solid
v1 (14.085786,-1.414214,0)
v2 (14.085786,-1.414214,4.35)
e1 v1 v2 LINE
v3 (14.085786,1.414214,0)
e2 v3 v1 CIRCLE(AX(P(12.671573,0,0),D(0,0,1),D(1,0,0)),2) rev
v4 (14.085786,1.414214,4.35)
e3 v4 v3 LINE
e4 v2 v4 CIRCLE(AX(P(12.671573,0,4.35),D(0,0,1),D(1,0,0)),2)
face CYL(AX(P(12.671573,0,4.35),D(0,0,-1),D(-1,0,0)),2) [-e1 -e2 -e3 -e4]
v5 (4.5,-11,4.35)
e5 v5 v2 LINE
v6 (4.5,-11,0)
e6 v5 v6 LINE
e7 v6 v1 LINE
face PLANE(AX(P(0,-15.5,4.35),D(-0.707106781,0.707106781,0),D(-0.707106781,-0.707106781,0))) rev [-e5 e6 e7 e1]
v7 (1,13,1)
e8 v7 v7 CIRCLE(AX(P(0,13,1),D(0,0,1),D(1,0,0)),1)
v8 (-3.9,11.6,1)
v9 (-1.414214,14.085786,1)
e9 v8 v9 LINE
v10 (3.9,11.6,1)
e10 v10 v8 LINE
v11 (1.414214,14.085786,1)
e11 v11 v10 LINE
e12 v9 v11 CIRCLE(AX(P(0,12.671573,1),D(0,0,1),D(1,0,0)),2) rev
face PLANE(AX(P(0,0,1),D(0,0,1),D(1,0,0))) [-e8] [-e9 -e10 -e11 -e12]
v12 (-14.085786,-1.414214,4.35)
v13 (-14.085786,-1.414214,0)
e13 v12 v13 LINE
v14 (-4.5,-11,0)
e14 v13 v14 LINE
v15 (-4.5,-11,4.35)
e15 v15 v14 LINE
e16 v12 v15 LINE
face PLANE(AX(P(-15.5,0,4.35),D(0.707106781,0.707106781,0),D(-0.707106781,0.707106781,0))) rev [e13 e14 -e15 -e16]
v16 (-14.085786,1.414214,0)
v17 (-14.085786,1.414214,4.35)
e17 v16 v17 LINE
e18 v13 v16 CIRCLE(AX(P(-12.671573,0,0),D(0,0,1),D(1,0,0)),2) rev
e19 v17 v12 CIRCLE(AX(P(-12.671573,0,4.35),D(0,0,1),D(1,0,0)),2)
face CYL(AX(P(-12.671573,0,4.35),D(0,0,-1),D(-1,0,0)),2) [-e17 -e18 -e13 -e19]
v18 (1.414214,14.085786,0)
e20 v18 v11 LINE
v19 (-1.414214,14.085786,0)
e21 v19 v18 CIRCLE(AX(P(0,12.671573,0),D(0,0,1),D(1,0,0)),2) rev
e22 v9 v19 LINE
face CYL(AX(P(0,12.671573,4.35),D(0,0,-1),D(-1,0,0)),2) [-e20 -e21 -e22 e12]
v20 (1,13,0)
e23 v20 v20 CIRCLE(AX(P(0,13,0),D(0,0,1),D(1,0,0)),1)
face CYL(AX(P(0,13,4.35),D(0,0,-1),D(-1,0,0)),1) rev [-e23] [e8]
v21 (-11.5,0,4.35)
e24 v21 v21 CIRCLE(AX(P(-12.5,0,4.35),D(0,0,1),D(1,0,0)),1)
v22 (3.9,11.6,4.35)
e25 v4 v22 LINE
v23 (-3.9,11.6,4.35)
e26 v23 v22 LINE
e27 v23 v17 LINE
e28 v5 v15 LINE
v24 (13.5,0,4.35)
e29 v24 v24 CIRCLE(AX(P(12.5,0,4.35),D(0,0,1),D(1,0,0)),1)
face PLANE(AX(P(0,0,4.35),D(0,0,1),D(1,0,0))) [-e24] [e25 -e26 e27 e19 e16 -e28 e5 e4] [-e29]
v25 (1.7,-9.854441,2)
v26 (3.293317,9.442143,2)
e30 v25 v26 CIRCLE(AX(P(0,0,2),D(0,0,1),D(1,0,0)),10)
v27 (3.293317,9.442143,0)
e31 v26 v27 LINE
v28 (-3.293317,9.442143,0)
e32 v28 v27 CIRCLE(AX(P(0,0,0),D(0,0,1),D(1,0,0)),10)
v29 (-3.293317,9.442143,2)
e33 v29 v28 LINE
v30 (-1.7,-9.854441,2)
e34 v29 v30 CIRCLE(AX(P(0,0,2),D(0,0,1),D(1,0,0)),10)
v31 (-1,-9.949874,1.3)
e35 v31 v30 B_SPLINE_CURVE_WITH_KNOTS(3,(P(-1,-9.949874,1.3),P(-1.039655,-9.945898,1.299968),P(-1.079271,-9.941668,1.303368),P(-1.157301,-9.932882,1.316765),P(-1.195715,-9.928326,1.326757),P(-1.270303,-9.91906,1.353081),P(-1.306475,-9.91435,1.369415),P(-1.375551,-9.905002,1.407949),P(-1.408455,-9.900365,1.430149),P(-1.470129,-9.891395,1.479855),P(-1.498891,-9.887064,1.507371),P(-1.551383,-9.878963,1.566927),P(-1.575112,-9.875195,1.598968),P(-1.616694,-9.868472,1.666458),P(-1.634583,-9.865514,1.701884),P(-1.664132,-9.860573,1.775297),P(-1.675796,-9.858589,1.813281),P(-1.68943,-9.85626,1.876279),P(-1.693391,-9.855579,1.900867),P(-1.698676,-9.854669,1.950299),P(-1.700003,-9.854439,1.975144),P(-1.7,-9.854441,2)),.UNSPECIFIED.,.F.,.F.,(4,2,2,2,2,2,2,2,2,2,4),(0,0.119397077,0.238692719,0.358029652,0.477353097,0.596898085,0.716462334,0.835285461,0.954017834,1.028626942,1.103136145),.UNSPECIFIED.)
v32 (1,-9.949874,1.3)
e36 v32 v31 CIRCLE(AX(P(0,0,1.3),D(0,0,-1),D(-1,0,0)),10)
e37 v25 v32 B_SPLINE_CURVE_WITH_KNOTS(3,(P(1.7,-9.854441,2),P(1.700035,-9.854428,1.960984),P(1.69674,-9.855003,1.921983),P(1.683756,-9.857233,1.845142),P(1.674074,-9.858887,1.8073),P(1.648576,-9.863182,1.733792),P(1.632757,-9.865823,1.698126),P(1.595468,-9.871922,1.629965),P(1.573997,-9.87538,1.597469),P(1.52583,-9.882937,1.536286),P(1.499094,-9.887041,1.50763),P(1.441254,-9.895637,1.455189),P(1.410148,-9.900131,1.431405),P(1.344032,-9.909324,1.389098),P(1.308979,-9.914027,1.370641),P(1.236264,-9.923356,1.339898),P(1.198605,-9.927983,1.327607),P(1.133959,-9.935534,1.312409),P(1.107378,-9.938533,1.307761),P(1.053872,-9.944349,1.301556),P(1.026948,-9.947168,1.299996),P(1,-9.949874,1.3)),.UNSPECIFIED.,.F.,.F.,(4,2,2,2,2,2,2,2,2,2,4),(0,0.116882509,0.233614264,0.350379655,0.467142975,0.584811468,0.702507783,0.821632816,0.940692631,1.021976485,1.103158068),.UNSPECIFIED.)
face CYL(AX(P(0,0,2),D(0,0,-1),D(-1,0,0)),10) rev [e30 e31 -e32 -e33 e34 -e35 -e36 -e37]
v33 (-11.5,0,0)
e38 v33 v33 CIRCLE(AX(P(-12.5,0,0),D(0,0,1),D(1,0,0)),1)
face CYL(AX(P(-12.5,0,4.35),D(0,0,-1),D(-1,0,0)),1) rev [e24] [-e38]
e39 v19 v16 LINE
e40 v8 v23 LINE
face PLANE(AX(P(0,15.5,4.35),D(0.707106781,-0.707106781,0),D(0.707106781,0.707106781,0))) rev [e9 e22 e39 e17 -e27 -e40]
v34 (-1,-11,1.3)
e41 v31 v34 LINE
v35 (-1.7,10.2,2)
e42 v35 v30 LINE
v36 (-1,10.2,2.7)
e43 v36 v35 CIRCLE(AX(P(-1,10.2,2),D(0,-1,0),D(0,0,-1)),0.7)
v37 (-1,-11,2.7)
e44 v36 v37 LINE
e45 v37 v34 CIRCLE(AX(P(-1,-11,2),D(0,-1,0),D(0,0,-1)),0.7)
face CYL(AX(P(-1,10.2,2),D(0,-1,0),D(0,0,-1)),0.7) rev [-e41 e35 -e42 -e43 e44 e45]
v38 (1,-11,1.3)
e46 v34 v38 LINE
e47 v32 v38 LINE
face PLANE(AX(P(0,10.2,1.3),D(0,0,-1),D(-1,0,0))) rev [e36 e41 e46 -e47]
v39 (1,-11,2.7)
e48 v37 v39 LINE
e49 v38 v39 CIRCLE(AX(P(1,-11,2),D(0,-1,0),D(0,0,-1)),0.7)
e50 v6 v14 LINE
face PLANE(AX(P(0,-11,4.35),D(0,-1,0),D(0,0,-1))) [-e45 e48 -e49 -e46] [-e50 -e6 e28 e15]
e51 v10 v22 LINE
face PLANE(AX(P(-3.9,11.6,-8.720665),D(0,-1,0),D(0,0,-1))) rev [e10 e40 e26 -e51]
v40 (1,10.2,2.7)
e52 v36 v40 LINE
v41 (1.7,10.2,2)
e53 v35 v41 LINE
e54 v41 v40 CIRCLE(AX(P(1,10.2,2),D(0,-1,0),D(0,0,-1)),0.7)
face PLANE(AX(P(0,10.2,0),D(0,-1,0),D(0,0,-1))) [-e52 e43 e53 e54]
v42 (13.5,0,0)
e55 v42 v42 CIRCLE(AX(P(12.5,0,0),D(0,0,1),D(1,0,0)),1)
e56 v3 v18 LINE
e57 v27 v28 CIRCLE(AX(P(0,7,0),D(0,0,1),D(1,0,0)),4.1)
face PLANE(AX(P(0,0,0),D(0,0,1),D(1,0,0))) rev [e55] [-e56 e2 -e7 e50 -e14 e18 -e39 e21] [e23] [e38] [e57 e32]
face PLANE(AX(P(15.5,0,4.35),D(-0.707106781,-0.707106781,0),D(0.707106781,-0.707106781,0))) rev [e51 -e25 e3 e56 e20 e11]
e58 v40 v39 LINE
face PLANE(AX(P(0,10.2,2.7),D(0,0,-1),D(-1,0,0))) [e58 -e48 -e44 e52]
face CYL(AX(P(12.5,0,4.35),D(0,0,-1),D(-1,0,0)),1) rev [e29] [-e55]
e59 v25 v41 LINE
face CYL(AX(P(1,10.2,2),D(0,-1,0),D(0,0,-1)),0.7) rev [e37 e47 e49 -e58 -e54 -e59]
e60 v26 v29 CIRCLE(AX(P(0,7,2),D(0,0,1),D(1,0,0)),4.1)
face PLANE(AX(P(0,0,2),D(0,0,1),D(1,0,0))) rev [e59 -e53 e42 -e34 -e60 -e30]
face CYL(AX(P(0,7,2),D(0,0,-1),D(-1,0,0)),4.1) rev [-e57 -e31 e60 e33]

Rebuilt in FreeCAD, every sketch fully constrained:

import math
import FreeCAD as App
import Part
import Sketcher


def edges_at(feature, points):
    """Names of the edges that pass closest to the given points."""
    edges = feature.Shape.Edges
    near = lambda p: min(range(len(edges)), key=lambda i: edges[i].distToShape(Part.Vertex(*p))[0])
    return sorted({f"Edge{near(p) + 1}" for p in points})

doc = App.newDocument("Part")
body = doc.addObject("PartDesign::Body", "Body")

sketch1 = body.newObject("Sketcher::SketchObject", "Sketch")
sketch1.AttachmentSupport = (doc.getObject("XY_Plane"), [""])
sketch1.MapMode = "FlatFace"
sketch1.addGeometry([
    Part.LineSegment(App.Vector(0, 15.5, 0), App.Vector(-15.5, 0, 0)),
    Part.LineSegment(App.Vector(-15.5, 0, 0), App.Vector(0, -15.5, 0)),
    Part.LineSegment(App.Vector(0, -15.5, 0), App.Vector(15.5, 0, 0)),
    Part.LineSegment(App.Vector(15.5, 0, 0), App.Vector(0, 15.5, 0)),
], False)
sketch1.addConstraint([
    Sketcher.Constraint("Coincident", 0, 2, 1, 1),
    Sketcher.Constraint("Coincident", 1, 2, 2, 1),
    Sketcher.Constraint("Coincident", 2, 2, 3, 1),
    Sketcher.Constraint("Coincident", 3, 2, 0, 1),
    Sketcher.Constraint("Symmetric", 0, 2, 2, 2, -1, 1),
    Sketcher.Constraint("Symmetric", 1, 2, 3, 2, -1, 1),
    Sketcher.Constraint("PointOnObject", 0, 2, -1),
    Sketcher.Constraint("PointOnObject", 1, 2, -2),
    Sketcher.Constraint("Perpendicular", 0, 1),
    Sketcher.Constraint("DistanceX", 0, 2, 2, 2, 31.0),
])
pad1 = body.newObject("PartDesign::Pad", "Pad")
pad1.Profile = sketch1
pad1.Length = 4.35

sketch2 = body.newObject("Sketcher::SketchObject", "Sketch001")
sketch2.AttachmentSupport = (doc.getObject("XY_Plane"), [""])
sketch2.MapMode = "FlatFace"
sketch2.addGeometry([
    Part.Circle(App.Vector(-12.5, 0, 0), App.Vector(0, 0, 1), 1),
    Part.Circle(App.Vector(12.5, 0, 0), App.Vector(0, 0, 1), 1),
    Part.Circle(App.Vector(0, 13, 0), App.Vector(0, 0, 1), 1),
], False)
sketch2.addConstraint([
    Sketcher.Constraint("Equal", 0, 1),
    Sketcher.Constraint("Equal", 1, 2),
    Sketcher.Constraint("Symmetric", 0, 3, 1, 3, -1, 1),
    Sketcher.Constraint("PointOnObject", 0, 3, -1),
    Sketcher.Constraint("PointOnObject", 2, 3, -2),
    Sketcher.Constraint("Diameter", 0, 2.0),
    Sketcher.Constraint("DistanceY", -1, 1, 2, 3, 13.0),
    Sketcher.Constraint("DistanceX", 0, 3, 1, 3, 25.0),
])
pocket1 = body.newObject("PartDesign::Pocket", "Pocket")
pocket1.Profile = sketch2
pocket1.Type = "ThroughAll"
pocket1.Reversed = True

sketch3 = body.newObject("Sketcher::SketchObject", "Sketch002")
sketch3.AttachmentSupport = (doc.getObject("XY_Plane"), [""])
sketch3.MapMode = "FlatFace"
sketch3.addGeometry([
    Part.ArcOfCircle(Part.Circle(App.Vector(0, 7, 0), App.Vector(0, 0, 1), 4.1), math.radians(36.558598), math.radians(143.441402)),
    Part.ArcOfCircle(Part.Circle(App.Vector(0, 0, 0), App.Vector(0, 0, 1), 10), math.radians(109.228219), math.radians(430.771781)),
], False)
sketch3.addConstraint([
    Sketcher.Constraint("Coincident", 0, 1, 1, 2),
    Sketcher.Constraint("Coincident", 1, 1, 0, 2),
    Sketcher.Constraint("Coincident", 1, 3, -1, 1),
    Sketcher.Constraint("PointOnObject", 0, 3, -2),
    Sketcher.Constraint("Radius", 1, 10.0),
    Sketcher.Constraint("Radius", 0, 4.1),
    Sketcher.Constraint("DistanceY", -1, 1, 0, 3, 7.0),
])
pocket2 = body.newObject("PartDesign::Pocket", "Pocket001")
pocket2.Profile = sketch3
pocket2.Length = 2
pocket2.Reversed = True
doc.recompute()

fillet = body.newObject("PartDesign::Fillet", "Fillet")
fillet.Base = (pocket2, edges_at(pocket2, [
    (0, -15.5, 2.175),
    (-15.5, 0, 2.175),
    (0, 15.5, 2.175),
    (15.5, 0, 2.175),
]))
fillet.Radius = 2

sketch4 = body.newObject("Sketcher::SketchObject", "Sketch003")
sketch4.AttachmentSupport = (doc.getObject("XY_Plane"), [""])
sketch4.MapMode = "FlatFace"
sketch4.addGeometry([
    Part.LineSegment(App.Vector(-4.5, -11, 0), App.Vector(4.5, -11, 0)),
    Part.LineSegment(App.Vector(4.5, -11, 0), App.Vector(1.414214, -14.085786, 0)),
    Part.ArcOfCircle(Part.Circle(App.Vector(0, -12.671573, 0), App.Vector(0, 0, 1), 2), math.radians(-135), math.radians(-45)),
    Part.LineSegment(App.Vector(-1.414214, -14.085786, 0), App.Vector(-4.5, -11, 0)),
], False)
sketch4.addConstraint([
    Sketcher.Constraint("Coincident", 0, 2, 1, 1),
    Sketcher.Constraint("Tangent", 1, 2, 2, 2),
    Sketcher.Constraint("Tangent", 2, 1, 3, 1),
    Sketcher.Constraint("Coincident", 3, 2, 0, 1),
    Sketcher.Constraint("Horizontal", 0),
    Sketcher.Constraint("Symmetric", 1, 2, 2, 1, -2),
    Sketcher.Constraint("Perpendicular", 1, 3),
    Sketcher.Constraint("Radius", 2, 2.0),
    Sketcher.Constraint("DistanceX", 0, 1, 0, 2, 9.0),
    Sketcher.Constraint("DistanceY", 0, 2, -1, 1, 11.0),
])
pocket3 = body.newObject("PartDesign::Pocket", "Pocket002")
pocket3.Profile = sketch4
pocket3.Type = "ThroughAll"
pocket3.Reversed = True

sketch5 = body.newObject("Sketcher::SketchObject", "Sketch004")
sketch5.AttachmentSupport = (doc.getObject("XZ_Plane"), [""])
sketch5.MapMode = "FlatFace"
sketch5.AttachmentOffset = App.Placement(App.Vector(0, 0, 11), App.Rotation())
sketch5.addGeometry([
    Part.LineSegment(App.Vector(1, 2.7, 0), App.Vector(-1, 2.7, 0)),
    Part.ArcOfCircle(Part.Circle(App.Vector(-1, 2, 0), App.Vector(0, 0, 1), 0.7), math.radians(90), math.radians(270)),
    Part.LineSegment(App.Vector(-1, 1.3, 0), App.Vector(1, 1.3, 0)),
    Part.ArcOfCircle(Part.Circle(App.Vector(1, 2, 0), App.Vector(0, 0, 1), 0.7), math.radians(-90), math.radians(90)),
], False)
sketch5.addConstraint([
    Sketcher.Constraint("Tangent", 0, 2, 1, 1),
    Sketcher.Constraint("Tangent", 1, 2, 2, 1),
    Sketcher.Constraint("Tangent", 2, 2, 3, 1),
    Sketcher.Constraint("Tangent", 3, 2, 0, 1),
    Sketcher.Constraint("Horizontal", 0),
    Sketcher.Constraint("Horizontal", 2),
    Sketcher.Constraint("Radius", 1, 0.7),
    Sketcher.Constraint("DistanceX", 0, 2, 0, 1, 2.0),
    Sketcher.Constraint("DistanceX", 1, 3, -1, 1, 1.0),
    Sketcher.Constraint("DistanceY", -1, 1, 1, 3, 2.0),
])
pocket4 = body.newObject("PartDesign::Pocket", "Pocket003")
pocket4.Profile = sketch5
pocket4.Length = 21.2

sketch6 = body.newObject("Sketcher::SketchObject", "Sketch005")
sketch6.AttachmentSupport = (doc.getObject("XY_Plane"), [""])
sketch6.MapMode = "FlatFace"
sketch6.AttachmentOffset = App.Placement(App.Vector(0, 0, 4.35), App.Rotation())
sketch6.addGeometry([
    Part.LineSegment(App.Vector(-3.9, 11.6, 0), App.Vector(3.9, 11.6, 0)),
    Part.LineSegment(App.Vector(3.9, 11.6, 0), App.Vector(0, 15.5, 0)),
    Part.LineSegment(App.Vector(0, 15.5, 0), App.Vector(-3.9, 11.6, 0)),
], False)
sketch6.addConstraint([
    Sketcher.Constraint("Coincident", 0, 2, 1, 1),
    Sketcher.Constraint("Coincident", 1, 2, 2, 1),
    Sketcher.Constraint("Coincident", 2, 2, 0, 1),
    Sketcher.Constraint("Horizontal", 0),
    Sketcher.Constraint("PointOnObject", 1, 2, -2),
    Sketcher.Constraint("Perpendicular", 1, 2),
    Sketcher.Constraint("Equal", 1, 2),
    Sketcher.Constraint("DistanceX", 0, 1, 0, 2, 7.8),
    Sketcher.Constraint("DistanceY", -1, 1, 0, 2, 11.6),
])
pocket5 = body.newObject("PartDesign::Pocket", "Pocket004")
pocket5.Profile = sketch6
pocket5.Length = 3.35

doc.recompute()
